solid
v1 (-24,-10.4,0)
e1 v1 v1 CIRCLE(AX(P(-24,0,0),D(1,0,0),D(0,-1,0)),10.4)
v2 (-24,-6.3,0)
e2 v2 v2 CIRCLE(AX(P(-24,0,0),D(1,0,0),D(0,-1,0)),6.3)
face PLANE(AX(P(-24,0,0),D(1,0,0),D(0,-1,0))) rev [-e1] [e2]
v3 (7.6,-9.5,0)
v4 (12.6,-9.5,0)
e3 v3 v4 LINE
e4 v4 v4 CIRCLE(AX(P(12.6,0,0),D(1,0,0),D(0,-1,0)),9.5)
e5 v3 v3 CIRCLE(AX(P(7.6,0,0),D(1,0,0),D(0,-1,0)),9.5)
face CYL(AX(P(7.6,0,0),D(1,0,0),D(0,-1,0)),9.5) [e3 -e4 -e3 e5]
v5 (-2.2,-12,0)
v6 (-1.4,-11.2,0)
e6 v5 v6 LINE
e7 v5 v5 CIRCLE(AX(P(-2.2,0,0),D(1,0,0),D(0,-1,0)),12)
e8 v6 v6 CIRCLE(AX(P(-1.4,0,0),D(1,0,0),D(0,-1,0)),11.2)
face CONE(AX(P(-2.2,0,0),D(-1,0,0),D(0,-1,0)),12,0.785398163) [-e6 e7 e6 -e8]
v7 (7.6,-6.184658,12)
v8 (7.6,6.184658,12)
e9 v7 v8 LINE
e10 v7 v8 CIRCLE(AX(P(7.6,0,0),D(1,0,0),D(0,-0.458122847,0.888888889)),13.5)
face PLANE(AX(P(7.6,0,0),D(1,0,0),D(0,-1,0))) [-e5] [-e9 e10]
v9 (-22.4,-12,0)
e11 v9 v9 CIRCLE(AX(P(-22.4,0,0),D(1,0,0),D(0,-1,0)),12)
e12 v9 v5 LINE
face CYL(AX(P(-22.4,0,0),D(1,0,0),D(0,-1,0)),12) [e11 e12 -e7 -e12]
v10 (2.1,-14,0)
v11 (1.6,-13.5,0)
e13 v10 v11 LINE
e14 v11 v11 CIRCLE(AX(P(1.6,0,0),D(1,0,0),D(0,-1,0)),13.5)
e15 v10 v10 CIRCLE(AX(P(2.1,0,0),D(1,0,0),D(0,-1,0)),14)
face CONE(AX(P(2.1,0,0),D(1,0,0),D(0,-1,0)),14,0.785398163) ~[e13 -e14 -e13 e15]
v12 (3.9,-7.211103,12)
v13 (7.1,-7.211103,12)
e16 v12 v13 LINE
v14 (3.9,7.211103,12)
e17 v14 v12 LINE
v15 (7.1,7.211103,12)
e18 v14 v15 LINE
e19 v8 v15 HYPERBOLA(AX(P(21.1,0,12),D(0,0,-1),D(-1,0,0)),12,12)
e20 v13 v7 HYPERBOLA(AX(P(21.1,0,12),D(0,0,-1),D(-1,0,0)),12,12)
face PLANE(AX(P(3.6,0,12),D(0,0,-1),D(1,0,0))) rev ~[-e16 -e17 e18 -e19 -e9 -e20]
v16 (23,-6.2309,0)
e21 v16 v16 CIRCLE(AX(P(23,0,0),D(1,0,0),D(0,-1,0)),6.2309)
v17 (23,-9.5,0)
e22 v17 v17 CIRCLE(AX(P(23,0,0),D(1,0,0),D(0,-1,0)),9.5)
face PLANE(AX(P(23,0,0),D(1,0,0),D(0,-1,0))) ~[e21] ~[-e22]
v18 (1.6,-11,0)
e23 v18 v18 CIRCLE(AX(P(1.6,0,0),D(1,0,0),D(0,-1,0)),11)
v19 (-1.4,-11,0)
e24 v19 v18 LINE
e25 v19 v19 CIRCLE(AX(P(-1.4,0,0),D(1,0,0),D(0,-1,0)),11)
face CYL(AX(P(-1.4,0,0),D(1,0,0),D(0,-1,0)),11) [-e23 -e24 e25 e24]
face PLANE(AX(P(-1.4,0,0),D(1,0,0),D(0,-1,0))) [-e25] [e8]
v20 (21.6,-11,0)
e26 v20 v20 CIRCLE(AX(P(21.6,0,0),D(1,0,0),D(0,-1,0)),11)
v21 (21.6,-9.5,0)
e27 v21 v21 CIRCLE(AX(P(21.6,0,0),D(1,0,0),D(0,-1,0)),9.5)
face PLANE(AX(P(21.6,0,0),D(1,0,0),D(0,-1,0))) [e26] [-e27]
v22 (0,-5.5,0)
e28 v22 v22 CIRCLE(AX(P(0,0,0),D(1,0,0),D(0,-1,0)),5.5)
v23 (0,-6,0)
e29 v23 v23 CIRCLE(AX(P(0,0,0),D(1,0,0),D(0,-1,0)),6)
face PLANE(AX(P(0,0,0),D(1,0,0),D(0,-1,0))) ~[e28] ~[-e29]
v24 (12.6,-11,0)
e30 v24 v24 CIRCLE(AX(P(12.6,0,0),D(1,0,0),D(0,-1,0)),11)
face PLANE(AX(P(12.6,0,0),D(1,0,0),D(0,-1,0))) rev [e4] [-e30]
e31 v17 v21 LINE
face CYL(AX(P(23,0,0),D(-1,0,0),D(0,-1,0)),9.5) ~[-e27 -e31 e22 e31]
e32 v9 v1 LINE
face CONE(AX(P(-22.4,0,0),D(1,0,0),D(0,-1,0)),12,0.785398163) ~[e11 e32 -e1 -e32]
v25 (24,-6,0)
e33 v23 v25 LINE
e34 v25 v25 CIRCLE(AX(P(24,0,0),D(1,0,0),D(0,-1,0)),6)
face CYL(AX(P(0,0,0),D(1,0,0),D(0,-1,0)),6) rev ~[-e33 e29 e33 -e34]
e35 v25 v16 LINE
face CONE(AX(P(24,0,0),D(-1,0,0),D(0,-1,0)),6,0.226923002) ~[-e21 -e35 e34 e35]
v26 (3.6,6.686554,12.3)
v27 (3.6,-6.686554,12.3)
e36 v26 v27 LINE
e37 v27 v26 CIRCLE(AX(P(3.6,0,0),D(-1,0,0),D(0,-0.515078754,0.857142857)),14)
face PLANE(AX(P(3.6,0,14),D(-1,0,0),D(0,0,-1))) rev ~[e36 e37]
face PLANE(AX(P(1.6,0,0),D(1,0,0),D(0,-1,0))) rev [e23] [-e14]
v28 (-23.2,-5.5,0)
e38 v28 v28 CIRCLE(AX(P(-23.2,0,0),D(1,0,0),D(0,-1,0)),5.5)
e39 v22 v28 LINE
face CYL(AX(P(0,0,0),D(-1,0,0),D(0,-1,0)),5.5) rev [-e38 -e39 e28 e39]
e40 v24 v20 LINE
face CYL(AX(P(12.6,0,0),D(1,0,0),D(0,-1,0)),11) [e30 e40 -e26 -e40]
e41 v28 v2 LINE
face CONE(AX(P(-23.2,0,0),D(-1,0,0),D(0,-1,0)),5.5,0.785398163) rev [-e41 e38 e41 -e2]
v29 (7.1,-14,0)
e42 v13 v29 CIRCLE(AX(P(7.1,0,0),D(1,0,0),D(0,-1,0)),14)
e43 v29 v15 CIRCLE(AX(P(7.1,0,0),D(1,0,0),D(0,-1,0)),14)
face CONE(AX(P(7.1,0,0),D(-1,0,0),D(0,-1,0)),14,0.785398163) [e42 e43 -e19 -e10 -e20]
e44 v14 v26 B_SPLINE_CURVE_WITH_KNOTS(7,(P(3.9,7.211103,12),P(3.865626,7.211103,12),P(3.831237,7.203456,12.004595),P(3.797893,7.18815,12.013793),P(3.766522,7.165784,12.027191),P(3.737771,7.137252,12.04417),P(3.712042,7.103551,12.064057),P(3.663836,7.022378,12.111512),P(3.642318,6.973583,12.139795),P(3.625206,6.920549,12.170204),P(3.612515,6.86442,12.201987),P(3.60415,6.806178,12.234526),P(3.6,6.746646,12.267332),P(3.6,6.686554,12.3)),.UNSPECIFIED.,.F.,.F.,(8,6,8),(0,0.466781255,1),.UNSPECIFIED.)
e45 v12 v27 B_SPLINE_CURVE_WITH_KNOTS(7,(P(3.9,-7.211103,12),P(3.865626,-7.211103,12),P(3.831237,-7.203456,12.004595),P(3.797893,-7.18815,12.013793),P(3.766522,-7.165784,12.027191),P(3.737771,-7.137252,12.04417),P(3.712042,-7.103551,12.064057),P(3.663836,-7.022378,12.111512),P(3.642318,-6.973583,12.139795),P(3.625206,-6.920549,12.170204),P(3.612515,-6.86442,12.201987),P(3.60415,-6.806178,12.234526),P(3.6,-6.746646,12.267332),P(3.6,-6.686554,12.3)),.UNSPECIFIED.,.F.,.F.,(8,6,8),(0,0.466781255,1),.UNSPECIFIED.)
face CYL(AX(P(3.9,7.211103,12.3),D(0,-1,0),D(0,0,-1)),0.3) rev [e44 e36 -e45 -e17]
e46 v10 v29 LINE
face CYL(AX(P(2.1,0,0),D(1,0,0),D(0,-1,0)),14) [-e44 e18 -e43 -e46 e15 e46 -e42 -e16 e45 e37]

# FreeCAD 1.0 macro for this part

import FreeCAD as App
import Part
import Sketcher

V = App.Vector
Q = App.Units.Quantity


def edges_at(feature, points):
    """Names of the edges that pass closest to the given points."""
    edges = feature.Shape.Edges
    near = lambda p: min(range(len(edges)), key=lambda i: edges[i].distToShape(Part.Vertex(*p))[0])
    return sorted({f"Edge{near(p) + 1}" for p in points})


def add_polygon(sketch, points):
    """Adds a closed chain of lines whose ends are joined by coincident constraints."""
    first, n = sketch.GeometryCount, len(points)
    for a, b in zip(points, points[1:] + points[:1]):
        sketch.addGeometry(Part.LineSegment(App.Vector(*a, 0), App.Vector(*b, 0)), False)
    for i in range(n):
        sketch.addConstraint(Sketcher.Constraint("Coincident", first + i, 2, first + (i + 1) % n, 1))

doc = App.newDocument("Part")
body = doc.addObject("PartDesign::Body", "Body")

# Sketch on XY plane
sketch1 = body.newObject("Sketcher::SketchObject", "Sketch")
sketch1.AttachmentSupport = (doc.getObject("XY_Plane"), [""])
sketch1.MapMode = "FlatFace"
add_polygon(sketch1, [(0, -6), (0, -5.5), (-23.2, -5.5), (-24, -6.3), (-24, -10.4), (-22.4, -12), (-2.2, -12), (-1.4, -11.2), (-1.4, -11), (1.6, -11), (1.6, -13.5), (2.1, -14), (7.1, -14), (7.6, -13.5), (7.6, -9.5), (12.6, -9.5), (12.6, -11), (21.6, -11), (21.6, -9.5), (23, -9.5), (23, -6.23), (24, -6)])  # lines 0-21
sketch1.addConstraint([
    Sketcher.Constraint("Vertical", 0),
    Sketcher.Constraint("Horizontal", 1),
    Sketcher.Constraint("Vertical", 3),
    Sketcher.Constraint("Horizontal", 5),
    Sketcher.Constraint("Vertical", 7),
    Sketcher.Constraint("Horizontal", 8),
    Sketcher.Constraint("Vertical", 9),
    Sketcher.Constraint("Horizontal", 11),
    Sketcher.Constraint("Vertical", 13),
    Sketcher.Constraint("Horizontal", 14),
    Sketcher.Constraint("Vertical", 15),
    Sketcher.Constraint("Horizontal", 16),
    Sketcher.Constraint("Vertical", 17),
    Sketcher.Constraint("Horizontal", 18),
    Sketcher.Constraint("Vertical", 19),
    Sketcher.Constraint("Horizontal", 21),
    Sketcher.Constraint("PointOnObject", 0, 2, -2),
    Sketcher.Constraint("Perpendicular", 2, 4),
    Sketcher.Constraint("Perpendicular", 4, 6),
    Sketcher.Constraint("Perpendicular", 6, 10),
    Sketcher.Constraint("Perpendicular", 10, 12),
    Sketcher.Constraint("Horizontal", 9, 2, 12, 2),
    Sketcher.Constraint("Horizontal", 8, 2, 15, 2),
    Sketcher.Constraint("Horizontal", 14, 2, 17, 2),
    Sketcher.Constraint("Equal", 11, 14),
    Sketcher.Constraint("Equal", 2, 6),
    Sketcher.Constraint("Equal", 10, 12),
    Sketcher.Constraint("DistanceX", 8, 1, 8, 2, Q("3 mm")),
    Sketcher.Constraint("DistanceX", 11, 1, 11, 2, Q("5 mm")),
    Sketcher.Constraint("DistanceX", 21, 2, 21, 1, Q("24 mm")),
    Sketcher.Constraint("DistanceY", 0, 1, 0, 2, Q("0.5 mm")),
    Sketcher.Constraint("DistanceX", 2, 2, -1, 1, Q("24 mm")),
    Sketcher.Constraint("DistanceY", 4, 2, -1, 1, Q("12 mm")),
    Sketcher.Constraint("DistanceY", 7, 2, -1, 1, Q("11 mm")),
    Sketcher.Constraint("DistanceY", 10, 2, -1, 1, Q("14 mm")),
    Sketcher.Constraint("DistanceY", 20, 2, -1, 1, Q("6 mm")),
    Sketcher.Constraint("DistanceX", 4, 2, 8, 2, Q("24 mm")),
    Sketcher.Constraint("DistanceX", 9, 2, 12, 2, Q("6 mm")),
    Sketcher.Constraint("DistanceX", 13, 2, 16, 2, Q("14 mm")),
    Sketcher.Constraint("DistanceX", 19, 2, 20, 2, Q("1 mm")),
    Sketcher.Constraint("DistanceX", -1, 1, 8, 2, Q("1.6 mm")),
    Sketcher.Constraint("DistanceX", 2, 2, 1, 2, Q("0.8 mm")),
    Sketcher.Constraint("DistanceY", 13, 1, 13, 2, Q("4 mm")),
    Sketcher.Constraint("DistanceY", 19, 1, 19, 2, Q("3.269 mm")),
])
revolution = body.newObject("PartDesign::Revolution", "Revolution")
revolution.Profile = sketch1
revolution.ReferenceAxis = (sketch1, ["H_Axis"])
revolution.Angle = 360

# Sketch on XZ plane
sketch2 = body.newObject("Sketcher::SketchObject", "Sketch001")
sketch2.AttachmentSupport = (doc.getObject("XZ_Plane"), [""])
sketch2.MapMode = "FlatFace"
add_polygon(sketch2, [(3.6, 14), (7.1, 14), (7.6, 13.5), (7.6, 12), (3.6, 12)])  # lines 0-4
sketch2.addConstraint([
    Sketcher.Constraint("Horizontal", 0),
    Sketcher.Constraint("Vertical", 2),
    Sketcher.Constraint("Horizontal", 3),
    Sketcher.Constraint("Vertical", 4),
    Sketcher.Constraint("DistanceY", 4, 1, 4, 2, Q("2 mm")),
    Sketcher.Constraint("DistanceX", 3, 2, 3, 1, Q("4 mm")),
    Sketcher.Constraint("Angle", 1, Q("-45 deg")),
    Sketcher.Constraint("DistanceX", 0, 1, 0, 2, Q("3.5 mm")),
    Sketcher.Constraint("DistanceY", -1, 1, 0, 2, Q("14 mm")),
    Sketcher.Constraint("DistanceX", -1, 1, 0, 2, Q("7.1 mm")),
])
pocket1 = body.newObject("PartDesign::Pocket", "Pocket")
pocket1.Profile = sketch2
pocket1.Type = "ThroughAll"
pocket1.Midplane = True
doc.recompute()

fillet = body.newObject("PartDesign::Fillet", "Fillet")
fillet.Base = (pocket1, edges_at(pocket1, [(3.6, 0, 12)]))
fillet.Radius = 0.3

doc.recompute()
